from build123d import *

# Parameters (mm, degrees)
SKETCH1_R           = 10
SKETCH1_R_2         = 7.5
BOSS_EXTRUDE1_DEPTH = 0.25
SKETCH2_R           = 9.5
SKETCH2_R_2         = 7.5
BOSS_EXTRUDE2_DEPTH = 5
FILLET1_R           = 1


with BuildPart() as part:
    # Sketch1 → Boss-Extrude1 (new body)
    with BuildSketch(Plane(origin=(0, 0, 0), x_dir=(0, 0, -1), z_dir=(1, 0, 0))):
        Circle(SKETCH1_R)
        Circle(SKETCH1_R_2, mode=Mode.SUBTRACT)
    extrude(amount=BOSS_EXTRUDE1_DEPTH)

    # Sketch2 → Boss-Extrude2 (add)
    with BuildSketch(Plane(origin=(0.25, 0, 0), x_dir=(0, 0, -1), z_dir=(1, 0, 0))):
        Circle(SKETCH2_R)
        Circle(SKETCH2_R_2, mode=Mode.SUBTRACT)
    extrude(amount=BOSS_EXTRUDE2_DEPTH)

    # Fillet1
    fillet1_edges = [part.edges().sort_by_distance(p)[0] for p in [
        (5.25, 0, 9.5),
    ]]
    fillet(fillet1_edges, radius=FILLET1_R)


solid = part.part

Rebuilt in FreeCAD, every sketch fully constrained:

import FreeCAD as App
import Part
import Sketcher
Q = App.Units.Quantity


def edges_at(feature, points):
    """Names of the edges that pass closest to the given points."""
    edges = feature.Shape.Edges
    near = lambda p: min(range(len(edges)), key=lambda i: edges[i].distToShape(Part.Vertex(*p))[0])
    return sorted({f"Edge{near(p) + 1}" for p in points})

doc = App.newDocument("Part")
body = doc.addObject("PartDesign::Body", "Body")

sketch1 = doc.addObject("Sketcher::SketchObject", "Sketch")
body.addObject(sketch1)
sketch1.AttachmentSupport = (doc.YZ_Plane, [""])
sketch1.MapMode = "FlatFace"
sketch1.addGeometry([
    Part.Circle(App.Vector(0, 0, 0), App.Vector(0, 0, 1), 10),
    Part.Circle(App.Vector(0, 0, 0), App.Vector(0, 0, 1), 8),
], False)
sketch1.addConstraint([
    Sketcher.Constraint("Coincident", 0, 3, -1, 1),
    Sketcher.Constraint("Coincident", 1, 3, -1, 1),
    Sketcher.Constraint("Diameter", 0, Q("20 mm")),
    Sketcher.Constraint("Diameter", 1, Q("15 mm")),
])
pad1 = doc.addObject("PartDesign::Pad", "Pad")
body.addObject(pad1)
pad1.Profile = sketch1
pad1.Length = 0.25

sketch2 = doc.addObject("Sketcher::SketchObject", "Sketch001")
body.addObject(sketch2)
sketch2.AttachmentSupport = (doc.YZ_Plane, [""])
sketch2.MapMode = "FlatFace"
sketch2.AttachmentOffset = App.Placement(App.Vector(0, 0, 0.25), App.Rotation())
sketch2.addGeometry([
    Part.Circle(App.Vector(0, 0, 0), App.Vector(0, 0, 1), 10),
    Part.Circle(App.Vector(0, 0, 0), App.Vector(0, 0, 1), 8),
], False)
sketch2.addConstraint([
    Sketcher.Constraint("Coincident", 0, 3, -1, 1),
    Sketcher.Constraint("Coincident", 1, 3, -1, 1),
    Sketcher.Constraint("Diameter", 0, Q("19 mm")),
    Sketcher.Constraint("Diameter", 1, Q("15 mm")),
])
pad2 = doc.addObject("PartDesign::Pad", "Pad001")
body.addObject(pad2)
pad2.Profile = sketch2
pad2.Length = 5
doc.recompute()

fillet = doc.addObject("PartDesign::Fillet", "Fillet")
body.addObject(fillet)
fillet.Base = (pad2, edges_at(pad2, [(5.25, 0, 9.5)]))
fillet.Radius = 1

doc.recompute()
